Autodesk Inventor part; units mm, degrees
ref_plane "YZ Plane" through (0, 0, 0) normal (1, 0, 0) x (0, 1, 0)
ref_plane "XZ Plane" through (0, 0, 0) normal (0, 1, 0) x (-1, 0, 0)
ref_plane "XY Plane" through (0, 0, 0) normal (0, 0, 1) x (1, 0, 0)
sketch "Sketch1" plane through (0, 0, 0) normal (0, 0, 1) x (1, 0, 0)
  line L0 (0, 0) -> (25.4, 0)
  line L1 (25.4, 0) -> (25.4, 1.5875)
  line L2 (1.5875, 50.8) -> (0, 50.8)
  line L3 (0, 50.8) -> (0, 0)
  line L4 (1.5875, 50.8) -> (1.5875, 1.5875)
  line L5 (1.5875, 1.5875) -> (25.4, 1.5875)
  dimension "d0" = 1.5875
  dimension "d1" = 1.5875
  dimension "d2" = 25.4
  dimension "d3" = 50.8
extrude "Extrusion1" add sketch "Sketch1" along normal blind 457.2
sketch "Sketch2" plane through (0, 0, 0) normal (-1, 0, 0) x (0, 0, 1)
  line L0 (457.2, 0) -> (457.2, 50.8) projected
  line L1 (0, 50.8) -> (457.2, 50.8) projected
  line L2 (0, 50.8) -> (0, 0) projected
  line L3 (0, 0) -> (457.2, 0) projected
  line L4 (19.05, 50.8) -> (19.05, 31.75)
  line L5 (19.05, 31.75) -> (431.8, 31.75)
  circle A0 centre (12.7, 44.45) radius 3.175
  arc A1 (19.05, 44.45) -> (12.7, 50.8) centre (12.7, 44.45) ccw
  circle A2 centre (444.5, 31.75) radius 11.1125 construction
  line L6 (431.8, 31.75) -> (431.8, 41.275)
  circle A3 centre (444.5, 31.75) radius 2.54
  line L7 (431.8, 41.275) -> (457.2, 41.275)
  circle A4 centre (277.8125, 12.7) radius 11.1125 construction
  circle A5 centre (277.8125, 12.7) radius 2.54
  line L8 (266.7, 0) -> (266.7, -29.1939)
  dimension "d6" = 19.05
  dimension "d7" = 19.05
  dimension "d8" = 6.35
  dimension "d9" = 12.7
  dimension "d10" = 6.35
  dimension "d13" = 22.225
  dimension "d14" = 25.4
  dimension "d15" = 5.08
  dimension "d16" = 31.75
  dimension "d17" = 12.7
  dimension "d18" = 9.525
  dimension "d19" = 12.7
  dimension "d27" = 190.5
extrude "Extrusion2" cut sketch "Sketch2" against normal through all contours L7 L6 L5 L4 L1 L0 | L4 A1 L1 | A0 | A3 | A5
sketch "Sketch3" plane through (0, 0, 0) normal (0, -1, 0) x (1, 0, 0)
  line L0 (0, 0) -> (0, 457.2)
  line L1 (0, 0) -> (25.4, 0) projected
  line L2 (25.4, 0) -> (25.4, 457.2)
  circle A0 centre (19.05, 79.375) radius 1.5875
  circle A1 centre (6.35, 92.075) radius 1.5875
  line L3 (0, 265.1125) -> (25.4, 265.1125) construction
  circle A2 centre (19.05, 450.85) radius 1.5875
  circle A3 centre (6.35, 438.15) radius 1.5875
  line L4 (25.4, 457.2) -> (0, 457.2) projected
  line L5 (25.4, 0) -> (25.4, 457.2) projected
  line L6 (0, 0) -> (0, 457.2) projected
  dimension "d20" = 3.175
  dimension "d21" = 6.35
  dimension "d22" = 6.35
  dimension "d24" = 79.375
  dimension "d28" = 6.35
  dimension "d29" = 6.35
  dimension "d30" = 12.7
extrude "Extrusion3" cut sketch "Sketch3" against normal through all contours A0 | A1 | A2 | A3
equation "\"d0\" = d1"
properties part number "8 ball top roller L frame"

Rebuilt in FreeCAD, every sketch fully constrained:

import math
import FreeCAD as App
import Part
import Sketcher
Q = App.Units.Quantity

doc = App.newDocument("Part")
body = doc.addObject("PartDesign::Body", "Body")

sketch1 = body.newObject("Sketcher::SketchObject", "Sketch")
sketch1.AttachmentSupport = (doc.getObject("XY_Plane"), [""])
sketch1.MapMode = "FlatFace"
sketch1.addGeometry([
    Part.LineSegment(App.Vector(0, 50.8, 0), App.Vector(0, 0, 0)),
    Part.LineSegment(App.Vector(0, 0, 0), App.Vector(25.4, 0, 0)),
    Part.LineSegment(App.Vector(25.4, 0, 0), App.Vector(25.4, 1.6, 0)),
    Part.LineSegment(App.Vector(25.4, 1.6, 0), App.Vector(1.6, 1.6, 0)),
    Part.LineSegment(App.Vector(1.6, 1.6, 0), App.Vector(1.6, 50.8, 0)),
    Part.LineSegment(App.Vector(1.6, 50.8, 0), App.Vector(0, 50.8, 0)),
], False)
sketch1.addConstraint([
    Sketcher.Constraint("Coincident", 0, 2, 1, 1),
    Sketcher.Constraint("Coincident", 1, 2, 2, 1),
    Sketcher.Constraint("Coincident", 2, 2, 3, 1),
    Sketcher.Constraint("Coincident", 3, 2, 4, 1),
    Sketcher.Constraint("Coincident", 4, 2, 5, 1),
    Sketcher.Constraint("Coincident", 5, 2, 0, 1),
    Sketcher.Constraint("Vertical", 0),
    Sketcher.Constraint("Horizontal", 1),
    Sketcher.Constraint("Vertical", 2),
    Sketcher.Constraint("Horizontal", 3),
    Sketcher.Constraint("Vertical", 4),
    Sketcher.Constraint("Horizontal", 5),
    Sketcher.Constraint("Coincident", 0, 2, -1, 1),
    Sketcher.Constraint("Equal", 5, 2),
    Sketcher.Constraint("DistanceX", 1, 1, 1, 2, Q("1 in")),
    Sketcher.Constraint("DistanceY", 0, 2, 0, 1, Q("2 in")),
    Sketcher.Constraint("DistanceX", 5, 2, 5, 1, Q("0.0625 in")),
])
pad1 = body.newObject("PartDesign::Pad", "Pad")
pad1.Profile = sketch1
pad1.Length = Q("18 in")

sketch2 = body.newObject("Sketcher::SketchObject", "Sketch001")
sketch2.AttachmentSupport = (doc.getObject("YZ_Plane"), [""])
sketch2.MapMode = "FlatFace"
sketch2.addGeometry([
    Part.LineSegment(App.Vector(41.3, 431.8, 0), App.Vector(41.3, 457.2, 0)),
    Part.LineSegment(App.Vector(41.3, 457.2, 0), App.Vector(50.8, 457.2, 0)),
    Part.LineSegment(App.Vector(50.8, 457.2, 0), App.Vector(50.8, 12.7, 0)),
    Part.ArcOfCircle(Part.Circle(App.Vector(44.5, 12.7, 0), App.Vector(0, 0, 1), 6.4), math.radians(0), math.radians(90)),
    Part.LineSegment(App.Vector(44.5, 19.1, 0), App.Vector(31.8, 19.1, 0)),
    Part.LineSegment(App.Vector(31.8, 19.1, 0), App.Vector(31.8, 431.8, 0)),
    Part.LineSegment(App.Vector(31.8, 431.8, 0), App.Vector(41.3, 431.8, 0)),
    Part.Circle(App.Vector(44.5, 12.7, 0), App.Vector(0, 0, 1), 3.2),
    Part.Circle(App.Vector(31.8, 444.5, 0), App.Vector(0, 0, 1), 2.5),
    Part.Circle(App.Vector(12.7, 277.8, 0), App.Vector(0, 0, 1), 2.5),
], False)
sketch2.addConstraint([
    Sketcher.Constraint("Coincident", 0, 2, 1, 1),
    Sketcher.Constraint("Coincident", 1, 2, 2, 1),
    Sketcher.Constraint("Tangent", 2, 2, 3, 1),
    Sketcher.Constraint("Tangent", 3, 2, 4, 1),
    Sketcher.Constraint("Coincident", 4, 2, 5, 1),
    Sketcher.Constraint("Coincident", 5, 2, 6, 1),
    Sketcher.Constraint("Coincident", 6, 2, 0, 1),
    Sketcher.Constraint("Vertical", 0),
    Sketcher.Constraint("Horizontal", 1),
    Sketcher.Constraint("Vertical", 2),
    Sketcher.Constraint("Horizontal", 4),
    Sketcher.Constraint("Vertical", 5),
    Sketcher.Constraint("Horizontal", 6),
    Sketcher.Constraint("Coincident", 7, 3, 3, 3),
    Sketcher.Constraint("Equal", 8, 9),
    Sketcher.Constraint("Vertical", 8, 3, 4, 2),
    Sketcher.Constraint("Equal", 1, 6),
    Sketcher.Constraint("Diameter", 8, Q("0.2 in")),
    Sketcher.Constraint("Diameter", 7, Q("0.25 in")),
    Sketcher.Constraint("DistanceY", 0, 1, 0, 2, Q("1 in")),
    Sketcher.Constraint("Radius", 3, Q("0.25 in")),
    Sketcher.Constraint("DistanceX", 4, 2, 4, 1, Q("0.5 in")),
    Sketcher.Constraint("DistanceY", -1, 1, 3, 3, Q("0.5 in")),
    Sketcher.Constraint("DistanceX", -1, 1, 9, 3, Q("0.5 in")),
    Sketcher.Constraint("DistanceY", 8, 3, 0, 2, Q("0.5 in")),
    Sketcher.Constraint("DistanceX", -1, 1, 8, 3, Q("1.25 in")),
    Sketcher.Constraint("DistanceY", 2, 2, 2, 1, Q("17.5 in")),
    Sketcher.Constraint("DistanceY", -1, 1, 9, 3, Q("10.9375 in")),
])
pocket1 = body.newObject("PartDesign::Pocket", "Pocket")
pocket1.Profile = sketch2
pocket1.Type = "ThroughAll"
pocket1.Reversed = True

sketch3 = body.newObject("Sketcher::SketchObject", "Sketch002")
sketch3.AttachmentSupport = (doc.getObject("XZ_Plane"), [""])
sketch3.MapMode = "FlatFace"
sketch3.addGeometry([
    Part.Circle(App.Vector(19.1, 79.4, 0), App.Vector(0, 0, 1), 1.6),
    Part.Circle(App.Vector(6.3, 92.1, 0), App.Vector(0, 0, 1), 1.6),
    Part.Circle(App.Vector(19.1, 450.9, 0), App.Vector(0, 0, 1), 1.6),
    Part.Circle(App.Vector(6.3, 438.1, 0), App.Vector(0, 0, 1), 1.6),
], False)
sketch3.addConstraint([
    Sketcher.Constraint("Equal", 0, 1),
    Sketcher.Constraint("Equal", 1, 2),
    Sketcher.Constraint("Equal", 2, 3),
    Sketcher.Constraint("Vertical", 0, 3, 2, 3),
    Sketcher.Constraint("Vertical", 1, 3, 3, 3),
    Sketcher.Constraint("Diameter", 0, Q("0.125 in")),
    Sketcher.Constraint("DistanceX", 1, 3, 0, 3, Q("0.5 in")),
    Sketcher.Constraint("DistanceY", 0, 3, 1, 3, Q("0.5 in")),
    Sketcher.Constraint("DistanceY", 3, 3, 2, 3, Q("0.5 in")),
    Sketcher.Constraint("DistanceX", -1, 1, 1, 3, Q("0.25 in")),
    Sketcher.Constraint("DistanceY", -1, 1, 0, 3, Q("3.125 in")),
    Sketcher.Constraint("DistanceY", -1, 1, 2, 3, Q("17.75 in")),
])
pocket2 = body.newObject("PartDesign::Pocket", "Pocket001")
pocket2.Profile = sketch3
pocket2.Type = "ThroughAll"

doc.recompute()
